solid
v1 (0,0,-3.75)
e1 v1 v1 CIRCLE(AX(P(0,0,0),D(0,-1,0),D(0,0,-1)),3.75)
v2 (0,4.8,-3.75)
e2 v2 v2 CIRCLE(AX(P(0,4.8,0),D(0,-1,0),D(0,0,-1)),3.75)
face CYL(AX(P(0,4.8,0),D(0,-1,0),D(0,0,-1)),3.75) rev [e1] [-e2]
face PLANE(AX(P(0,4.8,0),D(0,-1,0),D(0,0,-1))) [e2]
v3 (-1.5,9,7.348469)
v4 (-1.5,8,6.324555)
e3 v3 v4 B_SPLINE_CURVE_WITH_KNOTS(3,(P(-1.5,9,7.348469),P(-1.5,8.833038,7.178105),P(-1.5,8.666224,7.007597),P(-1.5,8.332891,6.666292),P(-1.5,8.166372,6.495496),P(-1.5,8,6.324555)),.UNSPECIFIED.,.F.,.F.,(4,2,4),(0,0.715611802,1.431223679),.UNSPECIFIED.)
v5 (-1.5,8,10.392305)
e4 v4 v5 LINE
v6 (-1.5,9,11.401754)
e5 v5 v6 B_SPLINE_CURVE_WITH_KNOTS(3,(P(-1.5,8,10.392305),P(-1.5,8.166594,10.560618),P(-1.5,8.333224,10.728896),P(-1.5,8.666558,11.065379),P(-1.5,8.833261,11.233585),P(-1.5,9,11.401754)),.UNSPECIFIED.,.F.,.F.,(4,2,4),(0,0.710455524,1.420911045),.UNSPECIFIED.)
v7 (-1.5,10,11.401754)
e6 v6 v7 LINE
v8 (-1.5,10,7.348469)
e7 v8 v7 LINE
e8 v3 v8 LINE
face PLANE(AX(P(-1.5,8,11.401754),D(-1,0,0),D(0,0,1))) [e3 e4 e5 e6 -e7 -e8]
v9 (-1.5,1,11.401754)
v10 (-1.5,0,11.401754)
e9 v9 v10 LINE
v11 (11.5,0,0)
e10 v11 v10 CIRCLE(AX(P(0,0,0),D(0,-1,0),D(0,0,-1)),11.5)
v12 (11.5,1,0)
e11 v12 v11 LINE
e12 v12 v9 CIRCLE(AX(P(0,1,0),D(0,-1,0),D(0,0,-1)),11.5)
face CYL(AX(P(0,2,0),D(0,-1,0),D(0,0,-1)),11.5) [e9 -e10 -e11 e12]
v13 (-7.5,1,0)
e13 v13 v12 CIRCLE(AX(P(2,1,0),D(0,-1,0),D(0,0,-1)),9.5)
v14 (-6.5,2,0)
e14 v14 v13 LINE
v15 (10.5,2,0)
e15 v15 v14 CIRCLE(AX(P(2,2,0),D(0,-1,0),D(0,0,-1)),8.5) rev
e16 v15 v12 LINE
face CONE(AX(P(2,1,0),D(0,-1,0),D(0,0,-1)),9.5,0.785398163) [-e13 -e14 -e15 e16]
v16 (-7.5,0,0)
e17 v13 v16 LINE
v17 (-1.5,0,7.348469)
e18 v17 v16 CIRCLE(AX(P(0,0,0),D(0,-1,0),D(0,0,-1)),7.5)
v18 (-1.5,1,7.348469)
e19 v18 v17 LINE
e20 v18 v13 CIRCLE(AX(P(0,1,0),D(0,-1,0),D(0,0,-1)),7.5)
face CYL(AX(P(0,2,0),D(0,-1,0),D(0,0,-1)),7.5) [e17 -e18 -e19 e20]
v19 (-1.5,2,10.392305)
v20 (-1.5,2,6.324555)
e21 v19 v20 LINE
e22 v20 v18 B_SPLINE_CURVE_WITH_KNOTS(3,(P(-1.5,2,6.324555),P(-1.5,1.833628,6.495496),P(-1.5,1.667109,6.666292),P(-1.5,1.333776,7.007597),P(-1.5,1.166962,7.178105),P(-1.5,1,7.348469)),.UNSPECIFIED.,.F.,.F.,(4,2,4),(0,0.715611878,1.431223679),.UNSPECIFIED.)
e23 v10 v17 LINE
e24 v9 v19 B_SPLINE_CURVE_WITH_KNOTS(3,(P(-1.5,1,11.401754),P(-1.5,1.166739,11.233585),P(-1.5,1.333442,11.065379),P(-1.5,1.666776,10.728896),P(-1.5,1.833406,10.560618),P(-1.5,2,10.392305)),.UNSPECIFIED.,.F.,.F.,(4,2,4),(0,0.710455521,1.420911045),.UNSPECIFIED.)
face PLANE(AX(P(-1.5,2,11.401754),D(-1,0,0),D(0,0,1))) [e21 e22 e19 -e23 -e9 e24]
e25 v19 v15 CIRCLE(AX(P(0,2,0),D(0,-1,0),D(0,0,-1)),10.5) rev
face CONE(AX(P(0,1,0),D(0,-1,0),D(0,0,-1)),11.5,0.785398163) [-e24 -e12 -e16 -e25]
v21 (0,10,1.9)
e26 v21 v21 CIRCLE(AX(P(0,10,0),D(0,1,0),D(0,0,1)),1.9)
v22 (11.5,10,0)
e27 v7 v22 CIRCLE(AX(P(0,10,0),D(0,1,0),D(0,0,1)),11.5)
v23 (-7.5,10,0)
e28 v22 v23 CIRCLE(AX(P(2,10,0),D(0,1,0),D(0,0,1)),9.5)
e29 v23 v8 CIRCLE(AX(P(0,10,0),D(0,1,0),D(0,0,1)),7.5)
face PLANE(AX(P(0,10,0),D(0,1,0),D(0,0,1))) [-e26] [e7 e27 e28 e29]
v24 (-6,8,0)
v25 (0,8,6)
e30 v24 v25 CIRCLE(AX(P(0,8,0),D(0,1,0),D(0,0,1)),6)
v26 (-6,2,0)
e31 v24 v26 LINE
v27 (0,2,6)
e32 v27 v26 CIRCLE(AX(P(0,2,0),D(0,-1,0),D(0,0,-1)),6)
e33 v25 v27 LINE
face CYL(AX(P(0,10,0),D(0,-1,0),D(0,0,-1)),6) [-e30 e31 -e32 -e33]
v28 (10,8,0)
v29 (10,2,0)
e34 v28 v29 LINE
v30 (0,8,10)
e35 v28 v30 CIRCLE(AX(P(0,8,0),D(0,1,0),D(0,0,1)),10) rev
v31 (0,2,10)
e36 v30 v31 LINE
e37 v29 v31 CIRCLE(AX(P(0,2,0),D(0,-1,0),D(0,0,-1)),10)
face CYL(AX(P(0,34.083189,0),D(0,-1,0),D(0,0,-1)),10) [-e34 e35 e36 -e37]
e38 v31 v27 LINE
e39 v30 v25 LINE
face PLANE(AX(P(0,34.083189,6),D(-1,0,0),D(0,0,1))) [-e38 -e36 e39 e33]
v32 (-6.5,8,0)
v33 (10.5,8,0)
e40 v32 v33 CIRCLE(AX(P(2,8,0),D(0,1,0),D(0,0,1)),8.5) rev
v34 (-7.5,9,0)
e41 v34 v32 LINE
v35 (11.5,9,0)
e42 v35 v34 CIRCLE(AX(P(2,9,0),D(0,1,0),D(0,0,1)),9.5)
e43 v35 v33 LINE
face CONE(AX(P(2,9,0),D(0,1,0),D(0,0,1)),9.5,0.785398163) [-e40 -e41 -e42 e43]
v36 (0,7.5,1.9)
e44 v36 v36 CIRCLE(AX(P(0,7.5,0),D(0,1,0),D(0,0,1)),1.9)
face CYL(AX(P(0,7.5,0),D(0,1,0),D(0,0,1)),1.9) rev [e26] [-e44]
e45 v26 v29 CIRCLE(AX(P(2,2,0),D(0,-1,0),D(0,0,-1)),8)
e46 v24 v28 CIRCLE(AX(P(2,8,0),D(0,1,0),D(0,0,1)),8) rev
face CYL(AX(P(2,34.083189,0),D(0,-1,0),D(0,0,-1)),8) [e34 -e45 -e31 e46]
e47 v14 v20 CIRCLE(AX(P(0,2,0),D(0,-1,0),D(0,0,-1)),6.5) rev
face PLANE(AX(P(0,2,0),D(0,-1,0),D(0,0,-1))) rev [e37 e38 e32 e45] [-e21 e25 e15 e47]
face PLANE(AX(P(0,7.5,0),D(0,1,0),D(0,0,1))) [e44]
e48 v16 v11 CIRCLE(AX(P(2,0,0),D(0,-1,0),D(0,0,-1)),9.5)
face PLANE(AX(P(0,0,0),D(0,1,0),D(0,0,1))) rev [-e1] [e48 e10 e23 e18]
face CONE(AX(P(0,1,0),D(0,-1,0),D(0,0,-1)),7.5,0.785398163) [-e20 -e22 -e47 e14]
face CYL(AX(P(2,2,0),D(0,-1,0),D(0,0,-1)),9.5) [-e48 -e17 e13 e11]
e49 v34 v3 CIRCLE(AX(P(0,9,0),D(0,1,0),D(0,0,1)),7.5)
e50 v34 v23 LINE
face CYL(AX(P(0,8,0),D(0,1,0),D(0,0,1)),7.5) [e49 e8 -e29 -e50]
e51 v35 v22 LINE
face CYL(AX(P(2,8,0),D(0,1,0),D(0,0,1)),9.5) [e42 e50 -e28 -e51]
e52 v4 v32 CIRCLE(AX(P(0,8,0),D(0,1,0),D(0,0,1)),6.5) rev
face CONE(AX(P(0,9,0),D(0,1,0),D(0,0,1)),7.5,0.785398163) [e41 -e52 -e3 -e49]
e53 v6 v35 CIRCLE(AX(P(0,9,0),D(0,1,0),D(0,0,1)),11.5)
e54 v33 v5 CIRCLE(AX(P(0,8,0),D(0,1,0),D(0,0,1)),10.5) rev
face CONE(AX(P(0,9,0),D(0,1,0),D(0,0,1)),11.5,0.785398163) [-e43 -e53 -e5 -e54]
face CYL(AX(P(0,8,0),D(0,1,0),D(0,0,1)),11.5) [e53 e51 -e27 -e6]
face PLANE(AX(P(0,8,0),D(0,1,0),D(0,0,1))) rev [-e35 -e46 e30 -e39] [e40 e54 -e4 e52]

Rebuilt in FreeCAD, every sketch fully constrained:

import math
import FreeCAD as App
import Part
import Sketcher
Q = App.Units.Quantity


def edges_at(feature, points):
    """Names of the edges that pass closest to the given points."""
    edges = feature.Shape.Edges
    near = lambda p: min(range(len(edges)), key=lambda i: edges[i].distToShape(Part.Vertex(*p))[0])
    return sorted({f"Edge{near(p) + 1}" for p in points})

doc = App.newDocument("Part")
body = doc.addObject("PartDesign::Body", "Body")

# Sketch on XZ plane
sketch1 = body.newObject("Sketcher::SketchObject", "Sketch")
sketch1.AttachmentSupport = (doc.getObject("XZ_Plane"), [""])
sketch1.MapMode = "FlatFace"
sketch1.addGeometry(Part.Circle(App.Vector(0, 0, 0), App.Vector(0, 0, 1), 6), False)
sketch1.addConstraint([
    Sketcher.Constraint("Coincident", 0, 3, -1, 1),
    Sketcher.Constraint("Diameter", 0, Q("12 mm")),
])
pad1 = body.newObject("PartDesign::Pad", "Pad")
pad1.Profile = sketch1
pad1.Length = 10
pad1.Reversed = True

# Sketch on XZ plane
sketch2 = body.newObject("Sketcher::SketchObject", "Sketch001")
sketch2.AttachmentSupport = (doc.getObject("XZ_Plane"), [""])
sketch2.MapMode = "FlatFace"
sketch2.AttachmentOffset = App.Placement(App.Vector(0, 0, -10), App.Rotation())
sketch2.addGeometry(Part.Circle(App.Vector(0, 0, 0), App.Vector(0, 0, 1), 1.9), False)
sketch2.addConstraint([
    Sketcher.Constraint("Coincident", 0, 3, -1, 1),
    Sketcher.Constraint("Diameter", 0, Q("3.8 mm")),
])
pocket1 = body.newObject("PartDesign::Pocket", "Pocket")
pocket1.Profile = sketch2
pocket1.Length = 2.5
pocket1.Reversed = True

# Sketch on XZ plane
sketch3 = body.newObject("Sketcher::SketchObject", "Sketch002")
sketch3.AttachmentSupport = (doc.getObject("XZ_Plane"), [""])
sketch3.MapMode = "FlatFace"
sketch3.addGeometry(Part.Circle(App.Vector(0, 0, 0), App.Vector(0, 0, 1), 3.8), False)
sketch3.addConstraint([
    Sketcher.Constraint("Coincident", 0, 3, -1, 1),
    Sketcher.Constraint("Diameter", 0, Q("7.5 mm")),
])
pocket2 = body.newObject("PartDesign::Pocket", "Pocket001")
pocket2.Profile = sketch3
pocket2.Length = 4.8

# Sketch on XZ plane
sketch4 = body.newObject("Sketcher::SketchObject", "Sketch003")
sketch4.AttachmentSupport = (doc.getObject("XZ_Plane"), [""])
sketch4.MapMode = "FlatFace"
sketch4.addGeometry([
    Part.LineSegment(App.Vector(0, 10, 0), App.Vector(0, 6, 0)),
    Part.ArcOfCircle(Part.Circle(App.Vector(0, 0, 0), App.Vector(0, 0, 1), 6), math.radians(180), math.radians(450)),
    Part.ArcOfCircle(Part.Circle(App.Vector(2, 0, 0), App.Vector(0, 0, 1), 8), math.radians(180), math.radians(360)),
    Part.ArcOfCircle(Part.Circle(App.Vector(0, 0, 0), App.Vector(0, 0, 1), 10), math.radians(0), math.radians(90)),
], False)
sketch4.addConstraint([
    Sketcher.Constraint("Coincident", 0, 2, 1, 2),
    Sketcher.Constraint("Tangent", 1, 1, 2, 1),
    Sketcher.Constraint("Tangent", 2, 2, 3, 1),
    Sketcher.Constraint("Coincident", 3, 2, 0, 1),
    Sketcher.Constraint("Vertical", 0),
    Sketcher.Constraint("Coincident", 1, 3, -1, 1),
    Sketcher.Constraint("Coincident", 3, 3, -1, 1),
    Sketcher.Constraint("PointOnObject", 2, 3, -1),
    Sketcher.Constraint("PointOnObject", 0, 2, -2),
    Sketcher.Constraint("Radius", 1, Q("6 mm")),
    Sketcher.Constraint("Radius", 2, Q("8 mm")),
])
pad2 = body.newObject("PartDesign::Pad", "Pad001")
pad2.Profile = sketch4
pad2.Length = 10
pad2.Reversed = True

# Sketch on XZ plane
sketch5 = body.newObject("Sketcher::SketchObject", "Sketch004")
sketch5.AttachmentSupport = (doc.getObject("XZ_Plane"), [""])
sketch5.MapMode = "FlatFace"
sketch5.addGeometry([
    Part.LineSegment(App.Vector(-1.5, 11.4, 0), App.Vector(-1.5, 7.3, 0)),  # 0
    Part.ArcOfCircle(Part.Circle(App.Vector(0, 0, 0), App.Vector(0, 0, 1), 7.5), math.radians(102), math.radians(180)),  # 1
    Part.ArcOfCircle(Part.Circle(App.Vector(2, 0, 0), App.Vector(0, 0, 1), 9.5), math.radians(180), math.radians(360)),  # 2
    Part.ArcOfCircle(Part.Circle(App.Vector(0, 0, 0), App.Vector(0, 0, 1), 11.5), math.radians(0), math.radians(97)),  # 3
    Part.LineSegment(App.Vector(0, 6, 0), App.Vector(0, 10, 0)),  # 4
    Part.ArcOfCircle(Part.Circle(App.Vector(0, 0, 0), App.Vector(0, 0, 1), 10), math.radians(0), math.radians(90)),  # 5
    Part.ArcOfCircle(Part.Circle(App.Vector(2, 0, 0), App.Vector(0, 0, 1), 8), math.radians(180), math.radians(360)),  # 6
    Part.ArcOfCircle(Part.Circle(App.Vector(0, 0, 0), App.Vector(0, 0, 1), 6), math.radians(90), math.radians(180)),  # 7
], False)
sketch5.addConstraint([
    Sketcher.Constraint("Coincident", 0, 2, 1, 1),
    Sketcher.Constraint("Tangent", 1, 2, 2, 1),
    Sketcher.Constraint("Tangent", 2, 2, 3, 1),
    Sketcher.Constraint("Coincident", 3, 2, 0, 1),
    Sketcher.Constraint("Coincident", 4, 2, 5, 2),
    Sketcher.Constraint("Tangent", 5, 1, 6, 2),
    Sketcher.Constraint("Tangent", 6, 1, 7, 2),
    Sketcher.Constraint("Coincident", 7, 1, 4, 1),
    Sketcher.Constraint("Vertical", 0),
    Sketcher.Constraint("Vertical", 4),
    Sketcher.Constraint("Coincident", 1, 3, -1, 1),
    Sketcher.Constraint("Coincident", 3, 3, -1, 1),
    Sketcher.Constraint("Coincident", 5, 3, -1, 1),
    Sketcher.Constraint("Coincident", 7, 3, -1, 1),
    Sketcher.Constraint("Coincident", 6, 3, 2, 3),
    Sketcher.Constraint("PointOnObject", 2, 3, -1),
    Sketcher.Constraint("PointOnObject", 4, 2, -2),
    Sketcher.Constraint("Radius", 5, Q("10 mm")),
    Sketcher.Constraint("Radius", 6, Q("8 mm")),
    Sketcher.Constraint("Radius", 1, Q("7.5 mm")),
    Sketcher.Constraint("DistanceX", 1, 2, 0, 2, Q("6 mm")),
])
pad3 = body.newObject("PartDesign::Pad", "Pad002")
pad3.Profile = sketch5
pad3.Length = 2
pad3.Reversed = True

# Sketch on XZ plane
sketch6 = body.newObject("Sketcher::SketchObject", "Sketch005")
sketch6.AttachmentSupport = (doc.getObject("XZ_Plane"), [""])
sketch6.MapMode = "FlatFace"
sketch6.AttachmentOffset = App.Placement(App.Vector(0, 0, -8), App.Rotation())
sketch6.addGeometry([
    Part.LineSegment(App.Vector(-1.5, 7.3, 0), App.Vector(-1.5, 11.4, 0)),  # 0
    Part.ArcOfCircle(Part.Circle(App.Vector(0, 0, 0), App.Vector(0, 0, 1), 11.5), math.radians(0), math.radians(97)),  # 1
    Part.ArcOfCircle(Part.Circle(App.Vector(2, 0, 0), App.Vector(0, 0, 1), 9.5), math.radians(180), math.radians(360)),  # 2
    Part.ArcOfCircle(Part.Circle(App.Vector(0, 0, 0), App.Vector(0, 0, 1), 7.5), math.radians(102), math.radians(180)),  # 3
    Part.Circle(App.Vector(0, 0, 0), App.Vector(0, 0, 1), 1.9),  # 4
], False)
sketch6.addConstraint([
    Sketcher.Constraint("Coincident", 0, 2, 1, 2),
    Sketcher.Constraint("Tangent", 1, 1, 2, 2),
    Sketcher.Constraint("Tangent", 2, 1, 3, 2),
    Sketcher.Constraint("Coincident", 3, 1, 0, 1),
    Sketcher.Constraint("Vertical", 0),
    Sketcher.Constraint("Coincident", 1, 3, -1, 1),
    Sketcher.Constraint("Coincident", 3, 3, -1, 1),
    Sketcher.Constraint("Coincident", 4, 3, -1, 1),
    Sketcher.Constraint("PointOnObject", 2, 3, -1),
    Sketcher.Constraint("Diameter", 4, Q("3.8 mm")),
    Sketcher.Constraint("Radius", 1, Q("11.5 mm")),
    Sketcher.Constraint("Radius", 2, Q("9.5 mm")),
    Sketcher.Constraint("DistanceX", 0, 2, 1, 1, Q("13 mm")),
])
pad4 = body.newObject("PartDesign::Pad", "Pad003")
pad4.Profile = sketch6
pad4.Length = 2
pad4.Reversed = True
doc.recompute()

chamfer = body.newObject("PartDesign::Chamfer", "Chamfer")
chamfer.Base = (pad4, edges_at(pad4, [
    (7.583, 2, 8.646),
    (2, 2, -9.5),
    (-5.809, 2, 4.743),
    (-5.809, 8, 4.743),
    (2, 8, -9.5),
    (7.583, 8, 8.646),
]))
chamfer.Size = 1

doc.recompute()
